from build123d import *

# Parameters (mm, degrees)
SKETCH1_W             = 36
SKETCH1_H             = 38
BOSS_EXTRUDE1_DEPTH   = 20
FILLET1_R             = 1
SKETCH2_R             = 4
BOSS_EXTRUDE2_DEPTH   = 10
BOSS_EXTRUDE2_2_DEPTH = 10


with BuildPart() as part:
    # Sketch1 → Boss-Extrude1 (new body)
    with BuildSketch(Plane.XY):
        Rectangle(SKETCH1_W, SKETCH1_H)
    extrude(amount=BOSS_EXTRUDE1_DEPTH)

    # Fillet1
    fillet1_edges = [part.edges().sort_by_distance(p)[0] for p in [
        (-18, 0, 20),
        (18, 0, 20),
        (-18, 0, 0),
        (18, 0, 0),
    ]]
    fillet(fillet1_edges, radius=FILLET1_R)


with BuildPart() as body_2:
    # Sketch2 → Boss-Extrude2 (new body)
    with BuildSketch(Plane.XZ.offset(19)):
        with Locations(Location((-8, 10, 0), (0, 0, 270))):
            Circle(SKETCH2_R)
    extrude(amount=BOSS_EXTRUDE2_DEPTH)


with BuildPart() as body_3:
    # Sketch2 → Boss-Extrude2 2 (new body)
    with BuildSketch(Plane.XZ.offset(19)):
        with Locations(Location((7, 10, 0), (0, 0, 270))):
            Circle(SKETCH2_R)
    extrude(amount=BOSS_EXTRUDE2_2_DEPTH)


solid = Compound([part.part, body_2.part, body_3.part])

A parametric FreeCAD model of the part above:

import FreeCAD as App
import Part
import Sketcher

V = App.Vector
Q = App.Units.Quantity


def edges_at(feature, points):
    """Names of the edges that pass closest to the given points."""
    edges = feature.Shape.Edges
    near = lambda p: min(range(len(edges)), key=lambda i: edges[i].distToShape(Part.Vertex(*p))[0])
    return sorted({f"Edge{near(p) + 1}" for p in points})

doc = App.newDocument("Part")
body = doc.addObject("PartDesign::Body", "Body")

sketch1 = doc.addObject("Sketcher::SketchObject", "Sketch")
body.addObject(sketch1)
sketch1.AttachmentSupport = (doc.XY_Plane, [""])
sketch1.MapMode = "FlatFace"
sketch1.addGeometry([
    Part.LineSegment(V(-18, 19, 0), V(-18, -19, 0)),
    Part.LineSegment(V(-18, -19, 0), V(18, -19, 0)),
    Part.LineSegment(V(18, -19, 0), V(18, 19, 0)),
    Part.LineSegment(V(18, 19, 0), V(-18, 19, 0)),
], False)
sketch1.addConstraint([
    Sketcher.Constraint("Coincident", 0, 2, 1, 1),
    Sketcher.Constraint("Coincident", 1, 2, 2, 1),
    Sketcher.Constraint("Coincident", 2, 2, 3, 1),
    Sketcher.Constraint("Coincident", 3, 2, 0, 1),
    Sketcher.Constraint("Vertical", 0),
    Sketcher.Constraint("Horizontal", 1),
    Sketcher.Constraint("Vertical", 2),
    Sketcher.Constraint("Horizontal", 3),
    Sketcher.Constraint("Symmetric", 0, 2, 2, 2, -1, 1),
    Sketcher.Constraint("DistanceX", 1, 1, 1, 2, Q("36 mm")),
    Sketcher.Constraint("DistanceY", 0, 2, 0, 1, Q("38 mm")),
])
pad1 = doc.addObject("PartDesign::Pad", "Pad")
body.addObject(pad1)
pad1.Profile = sketch1
pad1.Length = 20
doc.recompute()

fillet = doc.addObject("PartDesign::Fillet", "Fillet")
body.addObject(fillet)
fillet.Base = (pad1, edges_at(pad1, [
    (-18, 0, 20),
    (18, 0, 20),
    (-18, 0, 0),
    (18, 0, 0),
]))
fillet.Radius = 1
body2 = doc.addObject("PartDesign::Body", "Body001")

sketch2 = doc.addObject("Sketcher::SketchObject", "Sketch001")
body2.addObject(sketch2)
sketch2.AttachmentSupport = (doc.getObject("XZ_Plane001"), [""])
sketch2.MapMode = "FlatFace"
sketch2.AttachmentOffset = App.Placement(V(0, 0, 19), App.Rotation())
sketch2.addGeometry(Part.Circle(V(-8, 10, 0), V(0, 0, 1), 4), False)
sketch2.addConstraint([
    Sketcher.Constraint("Diameter", 0, Q("8 mm")),
    Sketcher.Constraint("DistanceX", 0, 3, -1, 1, Q("8 mm")),
    Sketcher.Constraint("DistanceY", -1, 1, 0, 3, Q("10 mm")),
])
pad2 = doc.addObject("PartDesign::Pad", "Pad001")
body2.addObject(pad2)
pad2.Profile = sketch2
pad2.Length = 10
body3 = doc.addObject("PartDesign::Body", "Body002")

sketch3 = doc.addObject("Sketcher::SketchObject", "Sketch002")
body3.addObject(sketch3)
sketch3.AttachmentSupport = (doc.getObject("XZ_Plane002"), [""])
sketch3.MapMode = "FlatFace"
sketch3.AttachmentOffset = App.Placement(V(0, 0, 19), App.Rotation())
sketch3.addGeometry(Part.Circle(V(7, 10, 0), V(0, 0, 1), 4), False)
sketch3.addConstraint([
    Sketcher.Constraint("Diameter", 0, Q("8 mm")),
    Sketcher.Constraint("DistanceX", -1, 1, 0, 3, Q("7 mm")),
    Sketcher.Constraint("DistanceY", -1, 1, 0, 3, Q("10 mm")),
])
pad3 = doc.addObject("PartDesign::Pad", "Pad002")
body3.addObject(pad3)
pad3.Profile = sketch3
pad3.Length = 10

doc.recompute()
